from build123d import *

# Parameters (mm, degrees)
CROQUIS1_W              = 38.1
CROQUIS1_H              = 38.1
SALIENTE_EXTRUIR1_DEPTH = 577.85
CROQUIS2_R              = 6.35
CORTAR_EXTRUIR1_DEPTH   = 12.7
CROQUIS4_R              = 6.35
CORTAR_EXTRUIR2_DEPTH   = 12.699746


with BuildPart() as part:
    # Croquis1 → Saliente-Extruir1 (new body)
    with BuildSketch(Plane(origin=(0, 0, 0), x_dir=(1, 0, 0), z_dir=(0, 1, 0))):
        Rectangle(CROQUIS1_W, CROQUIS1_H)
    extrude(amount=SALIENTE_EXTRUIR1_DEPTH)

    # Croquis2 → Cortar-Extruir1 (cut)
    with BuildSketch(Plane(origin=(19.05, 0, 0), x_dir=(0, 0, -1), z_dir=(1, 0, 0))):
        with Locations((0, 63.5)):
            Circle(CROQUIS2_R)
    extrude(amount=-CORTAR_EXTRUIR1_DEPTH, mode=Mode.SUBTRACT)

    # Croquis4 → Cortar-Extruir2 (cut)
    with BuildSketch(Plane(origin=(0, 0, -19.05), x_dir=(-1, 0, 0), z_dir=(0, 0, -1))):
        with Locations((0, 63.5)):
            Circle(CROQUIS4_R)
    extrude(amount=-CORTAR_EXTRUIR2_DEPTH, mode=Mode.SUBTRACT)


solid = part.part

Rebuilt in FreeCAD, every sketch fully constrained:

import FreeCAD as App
import Part
import Sketcher
Q = App.Units.Quantity

doc = App.newDocument("Part")
params = doc.addObject("Spreadsheet::Sheet", "Params")
for row, (alias, value) in enumerate([
    ("sketch1_width", "1.5 in"),
    ("pad1_length", "22.75 in"),
    ("sketch2_diameter", "0.5 in"),
    ("pocket1_length", "0.5 in"),
    ("sketch3_diameter", "0.5 in"),
    ("pocket2_length", "12.699746 mm"),
], start=1):
    params.set(f"A{row}", alias)
    params.set(f"B{row}", "=" + value)
    params.setAlias(f"B{row}", alias)

body = doc.addObject("PartDesign::Body", "Body")

sketch1 = body.newObject("Sketcher::SketchObject", "Sketch")
sketch1.AttachmentSupport = (doc.getObject("XZ_Plane"), [""])
sketch1.MapMode = "FlatFace"
sketch1.addGeometry([
    Part.LineSegment(App.Vector(-19, -19, 0), App.Vector(-19, 19, 0)),
    Part.LineSegment(App.Vector(-19, 19, 0), App.Vector(19, 19, 0)),
    Part.LineSegment(App.Vector(19, 19, 0), App.Vector(19, -19, 0)),
    Part.LineSegment(App.Vector(19, -19, 0), App.Vector(-19, -19, 0)),
], False)
sketch1.addConstraint([
    Sketcher.Constraint("Coincident", 0, 2, 1, 1),
    Sketcher.Constraint("Coincident", 1, 2, 2, 1),
    Sketcher.Constraint("Coincident", 2, 2, 3, 1),
    Sketcher.Constraint("Coincident", 3, 2, 0, 1),
    Sketcher.Constraint("Vertical", 0),
    Sketcher.Constraint("Horizontal", 1),
    Sketcher.Constraint("Vertical", 2),
    Sketcher.Constraint("Horizontal", 3),
    Sketcher.Constraint("Symmetric", 0, 2, 2, 2, -1, 1),
    Sketcher.Constraint("Equal", 3, 0),
    Sketcher.Constraint("DistanceX", 1, 1, 1, 2, Q("1.5 in")),
])
sketch1.setExpression("Constraints[10]", "Params.sketch1_width")
pad1 = body.newObject("PartDesign::Pad", "Pad")
pad1.Profile = sketch1
pad1.setExpression("Length", "Params.pad1_length")
pad1.Reversed = True

sketch2 = body.newObject("Sketcher::SketchObject", "Sketch001")
sketch2.AttachmentSupport = (doc.getObject("YZ_Plane"), [""])
sketch2.MapMode = "FlatFace"
sketch2.AttachmentOffset = App.Placement(App.Vector(0, 0, 0.75 * 25.4), App.Rotation())
sketch2.addGeometry(Part.Circle(App.Vector(64, 0, 0), App.Vector(0, 0, 1), 6), False)
sketch2.addConstraint([
    Sketcher.Constraint("PointOnObject", 0, 3, -1),
    Sketcher.Constraint("Diameter", 0, Q("0.5 in")),
    Sketcher.Constraint("DistanceX", -1, 1, 0, 3, Q("2.5 in")),
])
sketch2.setExpression("Constraints[1]", "Params.sketch2_diameter")
pocket1 = body.newObject("PartDesign::Pocket", "Pocket")
pocket1.Profile = sketch2
pocket1.setExpression("Length", "Params.pocket1_length")

sketch3 = body.newObject("Sketcher::SketchObject", "Sketch002")
sketch3.AttachmentSupport = (doc.getObject("XY_Plane"), [""])
sketch3.MapMode = "FlatFace"
sketch3.AttachmentOffset = App.Placement(App.Vector(0, 0, -0.75 * 25.4), App.Rotation())
sketch3.addGeometry(Part.Circle(App.Vector(0, 64, 0), App.Vector(0, 0, 1), 6), False)
sketch3.addConstraint([
    Sketcher.Constraint("PointOnObject", 0, 3, -2),
    Sketcher.Constraint("Diameter", 0, Q("0.5 in")),
    Sketcher.Constraint("DistanceY", -1, 1, 0, 3, Q("2.5 in")),
])
sketch3.setExpression("Constraints[1]", "Params.sketch3_diameter")
pocket2 = body.newObject("PartDesign::Pocket", "Pocket001")
pocket2.Profile = sketch3
pocket2.setExpression("Length", "Params.pocket2_length")
pocket2.Reversed = True

doc.recompute()
